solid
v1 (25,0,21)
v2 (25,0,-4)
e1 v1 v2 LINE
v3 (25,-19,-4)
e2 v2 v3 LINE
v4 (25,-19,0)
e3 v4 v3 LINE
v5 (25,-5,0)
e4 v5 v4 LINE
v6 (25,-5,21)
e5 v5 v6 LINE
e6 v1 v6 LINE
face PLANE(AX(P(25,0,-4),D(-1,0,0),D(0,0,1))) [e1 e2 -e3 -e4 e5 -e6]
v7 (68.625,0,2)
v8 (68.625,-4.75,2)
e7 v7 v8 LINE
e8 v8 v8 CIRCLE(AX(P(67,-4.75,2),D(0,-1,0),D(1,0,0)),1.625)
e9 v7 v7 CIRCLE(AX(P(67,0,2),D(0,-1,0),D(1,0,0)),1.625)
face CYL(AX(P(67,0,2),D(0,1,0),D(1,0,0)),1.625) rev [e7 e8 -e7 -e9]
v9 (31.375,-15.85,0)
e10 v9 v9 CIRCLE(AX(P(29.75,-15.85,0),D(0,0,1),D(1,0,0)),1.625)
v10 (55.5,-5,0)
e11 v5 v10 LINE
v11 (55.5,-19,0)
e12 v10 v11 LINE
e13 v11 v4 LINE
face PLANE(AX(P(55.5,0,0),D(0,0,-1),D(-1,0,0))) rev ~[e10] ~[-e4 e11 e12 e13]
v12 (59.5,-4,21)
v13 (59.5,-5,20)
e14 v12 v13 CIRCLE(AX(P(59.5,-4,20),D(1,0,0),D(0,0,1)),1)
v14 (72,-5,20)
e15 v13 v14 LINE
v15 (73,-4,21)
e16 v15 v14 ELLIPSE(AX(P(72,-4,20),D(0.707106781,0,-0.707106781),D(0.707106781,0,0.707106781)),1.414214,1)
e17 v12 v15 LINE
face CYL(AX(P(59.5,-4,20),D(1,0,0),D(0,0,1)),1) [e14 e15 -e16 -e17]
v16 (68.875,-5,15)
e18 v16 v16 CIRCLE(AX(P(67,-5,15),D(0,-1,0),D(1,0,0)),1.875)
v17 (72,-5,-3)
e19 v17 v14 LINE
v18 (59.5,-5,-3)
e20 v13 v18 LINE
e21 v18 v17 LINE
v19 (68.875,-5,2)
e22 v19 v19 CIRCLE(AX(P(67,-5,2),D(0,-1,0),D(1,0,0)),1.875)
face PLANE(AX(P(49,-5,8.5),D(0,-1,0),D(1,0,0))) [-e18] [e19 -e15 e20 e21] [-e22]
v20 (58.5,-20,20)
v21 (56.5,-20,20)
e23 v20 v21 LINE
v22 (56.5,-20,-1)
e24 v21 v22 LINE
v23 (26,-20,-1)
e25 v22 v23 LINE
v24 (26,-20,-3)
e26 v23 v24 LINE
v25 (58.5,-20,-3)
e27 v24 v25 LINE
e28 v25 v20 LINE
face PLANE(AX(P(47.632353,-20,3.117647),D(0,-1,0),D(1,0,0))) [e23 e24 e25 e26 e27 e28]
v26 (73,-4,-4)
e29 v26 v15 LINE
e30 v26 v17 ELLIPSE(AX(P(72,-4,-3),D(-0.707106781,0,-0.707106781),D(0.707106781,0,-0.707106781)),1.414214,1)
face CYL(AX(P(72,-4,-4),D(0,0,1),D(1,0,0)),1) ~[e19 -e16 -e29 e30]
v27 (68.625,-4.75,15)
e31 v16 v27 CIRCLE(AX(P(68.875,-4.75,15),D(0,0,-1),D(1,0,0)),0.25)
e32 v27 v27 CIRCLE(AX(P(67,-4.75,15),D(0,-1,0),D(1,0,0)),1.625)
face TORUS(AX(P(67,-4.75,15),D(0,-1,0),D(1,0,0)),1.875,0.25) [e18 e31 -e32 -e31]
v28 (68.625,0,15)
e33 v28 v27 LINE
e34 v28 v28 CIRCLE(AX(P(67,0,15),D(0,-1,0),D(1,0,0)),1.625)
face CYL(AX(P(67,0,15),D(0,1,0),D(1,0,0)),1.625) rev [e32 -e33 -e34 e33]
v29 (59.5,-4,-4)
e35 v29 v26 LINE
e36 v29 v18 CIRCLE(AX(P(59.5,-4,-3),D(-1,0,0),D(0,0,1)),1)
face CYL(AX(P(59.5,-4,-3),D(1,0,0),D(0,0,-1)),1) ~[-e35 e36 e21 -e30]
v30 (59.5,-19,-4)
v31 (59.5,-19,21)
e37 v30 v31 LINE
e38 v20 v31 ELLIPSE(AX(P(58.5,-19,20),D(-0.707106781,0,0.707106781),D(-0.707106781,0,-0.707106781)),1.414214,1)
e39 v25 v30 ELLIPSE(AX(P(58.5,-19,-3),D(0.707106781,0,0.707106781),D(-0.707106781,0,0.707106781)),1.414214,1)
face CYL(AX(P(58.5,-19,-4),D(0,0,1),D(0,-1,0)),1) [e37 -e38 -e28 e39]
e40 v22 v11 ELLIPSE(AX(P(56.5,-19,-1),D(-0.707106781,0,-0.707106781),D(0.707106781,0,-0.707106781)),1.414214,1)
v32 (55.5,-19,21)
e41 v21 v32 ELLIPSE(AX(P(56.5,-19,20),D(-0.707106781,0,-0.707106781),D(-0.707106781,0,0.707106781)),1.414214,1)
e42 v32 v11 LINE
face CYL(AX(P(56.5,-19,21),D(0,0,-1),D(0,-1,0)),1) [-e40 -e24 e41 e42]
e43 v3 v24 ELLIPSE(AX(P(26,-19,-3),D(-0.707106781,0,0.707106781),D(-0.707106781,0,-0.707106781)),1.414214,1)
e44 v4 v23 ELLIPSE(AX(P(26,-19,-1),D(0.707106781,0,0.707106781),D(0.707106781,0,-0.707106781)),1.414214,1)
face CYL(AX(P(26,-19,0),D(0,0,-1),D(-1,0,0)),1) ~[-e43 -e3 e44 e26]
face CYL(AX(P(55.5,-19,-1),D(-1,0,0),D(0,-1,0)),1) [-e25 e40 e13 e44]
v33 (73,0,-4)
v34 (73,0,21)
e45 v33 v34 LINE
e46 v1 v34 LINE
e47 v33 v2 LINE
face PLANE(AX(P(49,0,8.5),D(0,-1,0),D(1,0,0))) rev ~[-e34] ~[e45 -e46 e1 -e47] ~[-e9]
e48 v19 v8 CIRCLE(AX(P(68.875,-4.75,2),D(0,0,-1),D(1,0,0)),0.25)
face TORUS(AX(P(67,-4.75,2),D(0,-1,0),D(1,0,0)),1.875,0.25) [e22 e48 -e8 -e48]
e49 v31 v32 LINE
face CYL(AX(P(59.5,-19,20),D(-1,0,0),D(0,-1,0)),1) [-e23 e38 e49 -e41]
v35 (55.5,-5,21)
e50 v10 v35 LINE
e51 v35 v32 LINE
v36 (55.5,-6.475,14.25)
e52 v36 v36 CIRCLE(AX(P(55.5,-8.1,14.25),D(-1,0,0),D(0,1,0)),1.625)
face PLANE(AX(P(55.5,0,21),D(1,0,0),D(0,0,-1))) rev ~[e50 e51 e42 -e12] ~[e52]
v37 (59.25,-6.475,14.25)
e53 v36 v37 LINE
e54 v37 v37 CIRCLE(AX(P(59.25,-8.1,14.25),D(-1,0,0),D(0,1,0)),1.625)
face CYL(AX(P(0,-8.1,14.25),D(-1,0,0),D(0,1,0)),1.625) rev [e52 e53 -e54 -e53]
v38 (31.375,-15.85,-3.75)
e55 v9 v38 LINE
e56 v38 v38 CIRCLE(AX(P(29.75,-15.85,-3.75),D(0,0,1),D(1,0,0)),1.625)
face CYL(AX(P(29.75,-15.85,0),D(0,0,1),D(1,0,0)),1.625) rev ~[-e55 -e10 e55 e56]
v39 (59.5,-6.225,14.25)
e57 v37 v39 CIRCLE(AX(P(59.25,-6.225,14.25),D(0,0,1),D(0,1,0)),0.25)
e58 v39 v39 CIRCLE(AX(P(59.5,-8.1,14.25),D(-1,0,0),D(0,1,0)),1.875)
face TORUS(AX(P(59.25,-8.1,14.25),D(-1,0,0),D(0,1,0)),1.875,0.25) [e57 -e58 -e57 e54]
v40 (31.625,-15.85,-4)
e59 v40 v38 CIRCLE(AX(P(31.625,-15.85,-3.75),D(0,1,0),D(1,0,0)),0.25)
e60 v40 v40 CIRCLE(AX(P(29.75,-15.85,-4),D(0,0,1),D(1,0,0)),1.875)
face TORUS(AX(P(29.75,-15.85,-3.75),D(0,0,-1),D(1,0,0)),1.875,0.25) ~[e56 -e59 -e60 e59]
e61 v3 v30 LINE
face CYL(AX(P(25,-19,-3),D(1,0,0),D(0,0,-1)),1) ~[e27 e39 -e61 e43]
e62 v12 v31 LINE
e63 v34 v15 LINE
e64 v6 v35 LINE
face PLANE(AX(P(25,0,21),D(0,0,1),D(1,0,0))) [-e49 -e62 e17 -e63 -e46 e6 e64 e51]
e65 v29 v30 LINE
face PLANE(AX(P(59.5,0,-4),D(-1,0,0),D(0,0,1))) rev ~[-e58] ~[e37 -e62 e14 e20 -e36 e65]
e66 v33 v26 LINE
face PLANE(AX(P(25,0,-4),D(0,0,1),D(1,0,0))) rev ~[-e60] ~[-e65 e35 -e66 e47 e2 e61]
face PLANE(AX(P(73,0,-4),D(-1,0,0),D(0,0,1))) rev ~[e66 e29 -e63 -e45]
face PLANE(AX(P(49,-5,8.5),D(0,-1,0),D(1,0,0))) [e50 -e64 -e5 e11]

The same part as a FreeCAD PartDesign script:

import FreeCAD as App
import Part
import Sketcher
from FreeCAD import Vector
Q = App.Units.Quantity


def edges_at(feature, points):
    """Names of the edges that pass closest to the given points."""
    edges = feature.Shape.Edges
    near = lambda p: min(range(len(edges)), key=lambda i: edges[i].distToShape(Part.Vertex(*p))[0])
    return sorted({f"Edge{near(p) + 1}" for p in points})

doc = App.newDocument("Part")
body = doc.addObject("PartDesign::Body", "Body")

sketch1 = body.newObject("Sketcher::SketchObject", "Sketch")
sketch1.AttachmentSupport = (doc.getObject("YZ_Plane"), [""])
sketch1.MapMode = "FlatFace"
sketch1.addGeometry(Part.Circle(Vector(-8.1, 14.25, 0), Vector(0, 0, 1), 1.625), False)
sketch1.addConstraint(Sketcher.Constraint("Diameter", 0, Q("3.25 mm")))
sketch1.addConstraint(Sketcher.Constraint("DistanceX", 0, 3, -1, 1, Q("8.1 mm")))
sketch1.addConstraint(Sketcher.Constraint("DistanceY", -1, 1, 0, 3, Q("14.25 mm")))
pad1 = body.newObject("PartDesign::Pad", "Pad")
pad1.Profile = sketch1
pad1.Length = 75
body2 = doc.addObject("PartDesign::Body", "Body001")
body2.AllowCompound = True

sketch2 = body2.newObject("Sketcher::SketchObject", "Sketch001")
sketch2.AttachmentSupport = (doc.getObject("XY_Plane001"), [""])
sketch2.MapMode = "FlatFace"
sketch2.addGeometry(Part.Circle(Vector(29.75, -15.85, 0), Vector(0, 0, 1), 1.625), False)
sketch2.addConstraint(Sketcher.Constraint("Diameter", 0, Q("3.25 mm")))
sketch2.addConstraint(Sketcher.Constraint("DistanceX", -1, 1, 0, 3, Q("29.75 mm")))
sketch2.addConstraint(Sketcher.Constraint("DistanceY", 0, 3, -1, 1, Q("15.85 mm")))
pad2 = body2.newObject("PartDesign::Pad", "Pad001")
pad2.Profile = sketch2
pad2.Length = 10
pad2.Reversed = True
doc.recompute()

boolean = body2.newObject("PartDesign::Boolean", "Boolean")
boolean.Type = "Fuse"
boolean.addObjects([body])
body3 = doc.addObject("PartDesign::Body", "Body002")

sketch3 = body3.newObject("Sketcher::SketchObject", "Sketch002")
sketch3.AttachmentSupport = (doc.getObject("XZ_Plane002"), [""])
sketch3.MapMode = "FlatFace"
sketch3.addGeometry(Part.LineSegment(Vector(25, 0, 0), Vector(25, -4, 0)), False)
sketch3.addGeometry(Part.LineSegment(Vector(25, -4, 0), Vector(59.5, -4, 0)), False)
sketch3.addGeometry(Part.LineSegment(Vector(59.5, -4, 0), Vector(59.5, 21, 0)), False)
sketch3.addGeometry(Part.LineSegment(Vector(59.5, 21, 0), Vector(55.5, 21, 0)), False)
sketch3.addGeometry(Part.LineSegment(Vector(55.5, 21, 0), Vector(55.5, 0, 0)), False)
sketch3.addGeometry(Part.LineSegment(Vector(55.5, 0, 0), Vector(25, 0, 0)), False)
sketch3.addConstraint(Sketcher.Constraint("Coincident", 0, 2, 1, 1))
sketch3.addConstraint(Sketcher.Constraint("Coincident", 1, 2, 2, 1))
sketch3.addConstraint(Sketcher.Constraint("Coincident", 2, 2, 3, 1))
sketch3.addConstraint(Sketcher.Constraint("Coincident", 3, 2, 4, 1))
sketch3.addConstraint(Sketcher.Constraint("Coincident", 4, 2, 5, 1))
sketch3.addConstraint(Sketcher.Constraint("Coincident", 5, 2, 0, 1))
sketch3.addConstraint(Sketcher.Constraint("Vertical", 0))
sketch3.addConstraint(Sketcher.Constraint("Horizontal", 1))
sketch3.addConstraint(Sketcher.Constraint("Vertical", 2))
sketch3.addConstraint(Sketcher.Constraint("Horizontal", 3))
sketch3.addConstraint(Sketcher.Constraint("Vertical", 4))
sketch3.addConstraint(Sketcher.Constraint("Horizontal", 5))
sketch3.addConstraint(Sketcher.Constraint("PointOnObject", 4, 2, -1))
sketch3.addConstraint(Sketcher.Constraint("Equal", 3, 0))
sketch3.addConstraint(Sketcher.Constraint("DistanceX", 3, 2, 3, 1, Q("4 mm")))
sketch3.addConstraint(Sketcher.Constraint("DistanceY", 2, 1, 2, 2, Q("25 mm")))
sketch3.addConstraint(Sketcher.Constraint("DistanceX", 1, 1, 1, 2, Q("34.5 mm")))
sketch3.addConstraint(Sketcher.Constraint("DistanceX", -1, 1, 0, 2, Q("25 mm")))
pad3 = body3.newObject("PartDesign::Pad", "Pad002")
pad3.Profile = sketch3
pad3.Length = 20
body4 = doc.addObject("PartDesign::Body", "Body003")

sketch4 = body4.newObject("Sketcher::SketchObject", "Sketch003")
sketch4.AttachmentSupport = (doc.getObject("XZ_Plane003"), [""])
sketch4.MapMode = "FlatFace"
sketch4.addGeometry(Part.LineSegment(Vector(25, 21, 0), Vector(25, -4, 0)), False)
sketch4.addGeometry(Part.LineSegment(Vector(25, -4, 0), Vector(73, -4, 0)), False)
sketch4.addGeometry(Part.LineSegment(Vector(73, -4, 0), Vector(73, 21, 0)), False)
sketch4.addGeometry(Part.LineSegment(Vector(73, 21, 0), Vector(25, 21, 0)), False)
sketch4.addGeometry(Part.Circle(Vector(67, 2, 0), Vector(0, 0, 1), 1.625), False)
sketch4.addGeometry(Part.Circle(Vector(67, 15, 0), Vector(0, 0, 1), 1.625), False)
sketch4.addConstraint(Sketcher.Constraint("Coincident", 0, 2, 1, 1))
sketch4.addConstraint(Sketcher.Constraint("Coincident", 1, 2, 2, 1))
sketch4.addConstraint(Sketcher.Constraint("Coincident", 2, 2, 3, 1))
sketch4.addConstraint(Sketcher.Constraint("Coincident", 3, 2, 0, 1))
sketch4.addConstraint(Sketcher.Constraint("Vertical", 0))
sketch4.addConstraint(Sketcher.Constraint("Horizontal", 1))
sketch4.addConstraint(Sketcher.Constraint("Vertical", 2))
sketch4.addConstraint(Sketcher.Constraint("Horizontal", 3))
sketch4.addConstraint(Sketcher.Constraint("Equal", 4, 5))
sketch4.addConstraint(Sketcher.Constraint("Vertical", 4, 3, 5, 3))
sketch4.addConstraint(Sketcher.Constraint("Diameter", 4, Q("3.25 mm")))
sketch4.addConstraint(Sketcher.Constraint("DistanceX", 1, 1, 1, 2, Q("48 mm")))
sketch4.addConstraint(Sketcher.Constraint("DistanceY", 0, 2, 0, 1, Q("25 mm")))
sketch4.addConstraint(Sketcher.Constraint("DistanceX", -1, 1, 4, 3, Q("67 mm")))
sketch4.addConstraint(Sketcher.Constraint("DistanceY", -1, 1, 4, 3, Q("2 mm")))
sketch4.addConstraint(Sketcher.Constraint("DistanceY", -1, 1, 5, 3, Q("15 mm")))
sketch4.addConstraint(Sketcher.Constraint("DistanceX", -1, 1, 0, 2, Q("25 mm")))
sketch4.addConstraint(Sketcher.Constraint("DistanceY", 0, 2, -1, 1, Q("4 mm")))
pad4 = body4.newObject("PartDesign::Pad", "Pad003")
pad4.Profile = sketch4
pad4.Length = 5
doc.recompute()

boolean2 = body4.newObject("PartDesign::Boolean", "Boolean001")
boolean2.Type = "Fuse"
boolean2.addObjects([body3])
doc.recompute()

boolean3 = body4.newObject("PartDesign::Boolean", "Boolean002")
boolean3.Type = "Cut"
boolean3.addObjects([body2])
doc.recompute()

fillet = body4.newObject("PartDesign::Fillet", "Fillet")
fillet.Base = (boolean3, edges_at(boolean3, [
    (57.5, -20, 21),
    (59.5, -20, 8.5),
    (55.5, -20, 10.5),
    (25, -20, -2),
    (42.25, -20, -4),
    (40.25, -20, 0),
]))
fillet.Radius = 1
doc.recompute()

fillet2 = body4.newObject("PartDesign::Fillet", "Fillet001")
fillet2.Base = (fillet, edges_at(fillet, [(66.25, -5, 21), (66.25, -5, -4), (73, -5, 8.5)]))
fillet2.Radius = 1
doc.recompute()

fillet3 = body4.newObject("PartDesign::Fillet", "Fillet002")
fillet3.Base = (fillet2, edges_at(fillet2, [
    (59.5, -9.725, 14.25),
    (28.125, -15.85, -4),
    (65.375, -5, 2),
    (65.375, -5, 15),
]))
fillet3.Radius = 0.25

doc.recompute()
